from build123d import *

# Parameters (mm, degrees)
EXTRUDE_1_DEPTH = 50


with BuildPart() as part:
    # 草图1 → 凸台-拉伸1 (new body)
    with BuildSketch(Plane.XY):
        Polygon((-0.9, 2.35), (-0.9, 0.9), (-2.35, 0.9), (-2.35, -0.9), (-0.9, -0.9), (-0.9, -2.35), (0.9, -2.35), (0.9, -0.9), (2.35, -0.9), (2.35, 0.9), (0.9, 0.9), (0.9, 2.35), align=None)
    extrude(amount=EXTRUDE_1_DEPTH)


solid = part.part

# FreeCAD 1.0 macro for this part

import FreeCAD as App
import Part
import Sketcher
from FreeCAD import Vector


def add_polygon(sketch, points):
    """Adds a closed chain of lines whose ends are joined by coincident constraints."""
    first, n = sketch.GeometryCount, len(points)
    for a, b in zip(points, points[1:] + points[:1]):
        sketch.addGeometry(Part.LineSegment(App.Vector(*a, 0), App.Vector(*b, 0)), False)
    for i in range(n):
        sketch.addConstraint(Sketcher.Constraint("Coincident", first + i, 2, first + (i + 1) % n, 1))

doc = App.newDocument("Part")
body = doc.addObject("PartDesign::Body", "Body")

sketch1 = body.newObject("Sketcher::SketchObject", "Sketch")
sketch1.AttachmentSupport = (doc.getObject("XY_Plane"), [""])
sketch1.MapMode = "FlatFace"
add_polygon(sketch1, [(-0.9, 2.4), (-0.9, 0.9), (-2.4, 0.9), (-2.4, -0.9), (-0.9, -0.9), (-0.9, -2.4), (0.9, -2.4), (0.9, -0.9), (2.4, -0.9), (2.4, 0.9), (0.9, 0.9), (0.9, 2.4)])
sketch1.addConstraint([
    Sketcher.Constraint("Vertical", 0),
    Sketcher.Constraint("Horizontal", 1),
    Sketcher.Constraint("Vertical", 2),
    Sketcher.Constraint("Horizontal", 3),
    Sketcher.Constraint("Vertical", 4),
    Sketcher.Constraint("Horizontal", 5),
    Sketcher.Constraint("Vertical", 6),
    Sketcher.Constraint("Horizontal", 7),
    Sketcher.Constraint("Vertical", 8),
    Sketcher.Constraint("Horizontal", 9),
    Sketcher.Constraint("Vertical", 10),
    Sketcher.Constraint("Horizontal", 11),
    Sketcher.Constraint("Symmetric", 0, 2, 6, 2, -1, 1),
    Sketcher.Constraint("Symmetric", 2, 2, 8, 2, -1, 1),
    Sketcher.Constraint("Symmetric", 4, 2, 10, 2, -1, 1),
    Sketcher.Constraint("Symmetric", 3, 2, 6, 2, -2),
    Sketcher.Constraint("Equal", 9, 0),
    Sketcher.Constraint("Equal", 11, 2),
    Sketcher.Constraint("DistanceX", 5, 1, 5, 2, 1.8),
    Sketcher.Constraint("DistanceX", 1, 2, 1, 1, 1.45),
])
pad1 = body.newObject("PartDesign::Pad", "Pad")
pad1.Profile = sketch1
pad1.Length = 50

doc.recompute()
